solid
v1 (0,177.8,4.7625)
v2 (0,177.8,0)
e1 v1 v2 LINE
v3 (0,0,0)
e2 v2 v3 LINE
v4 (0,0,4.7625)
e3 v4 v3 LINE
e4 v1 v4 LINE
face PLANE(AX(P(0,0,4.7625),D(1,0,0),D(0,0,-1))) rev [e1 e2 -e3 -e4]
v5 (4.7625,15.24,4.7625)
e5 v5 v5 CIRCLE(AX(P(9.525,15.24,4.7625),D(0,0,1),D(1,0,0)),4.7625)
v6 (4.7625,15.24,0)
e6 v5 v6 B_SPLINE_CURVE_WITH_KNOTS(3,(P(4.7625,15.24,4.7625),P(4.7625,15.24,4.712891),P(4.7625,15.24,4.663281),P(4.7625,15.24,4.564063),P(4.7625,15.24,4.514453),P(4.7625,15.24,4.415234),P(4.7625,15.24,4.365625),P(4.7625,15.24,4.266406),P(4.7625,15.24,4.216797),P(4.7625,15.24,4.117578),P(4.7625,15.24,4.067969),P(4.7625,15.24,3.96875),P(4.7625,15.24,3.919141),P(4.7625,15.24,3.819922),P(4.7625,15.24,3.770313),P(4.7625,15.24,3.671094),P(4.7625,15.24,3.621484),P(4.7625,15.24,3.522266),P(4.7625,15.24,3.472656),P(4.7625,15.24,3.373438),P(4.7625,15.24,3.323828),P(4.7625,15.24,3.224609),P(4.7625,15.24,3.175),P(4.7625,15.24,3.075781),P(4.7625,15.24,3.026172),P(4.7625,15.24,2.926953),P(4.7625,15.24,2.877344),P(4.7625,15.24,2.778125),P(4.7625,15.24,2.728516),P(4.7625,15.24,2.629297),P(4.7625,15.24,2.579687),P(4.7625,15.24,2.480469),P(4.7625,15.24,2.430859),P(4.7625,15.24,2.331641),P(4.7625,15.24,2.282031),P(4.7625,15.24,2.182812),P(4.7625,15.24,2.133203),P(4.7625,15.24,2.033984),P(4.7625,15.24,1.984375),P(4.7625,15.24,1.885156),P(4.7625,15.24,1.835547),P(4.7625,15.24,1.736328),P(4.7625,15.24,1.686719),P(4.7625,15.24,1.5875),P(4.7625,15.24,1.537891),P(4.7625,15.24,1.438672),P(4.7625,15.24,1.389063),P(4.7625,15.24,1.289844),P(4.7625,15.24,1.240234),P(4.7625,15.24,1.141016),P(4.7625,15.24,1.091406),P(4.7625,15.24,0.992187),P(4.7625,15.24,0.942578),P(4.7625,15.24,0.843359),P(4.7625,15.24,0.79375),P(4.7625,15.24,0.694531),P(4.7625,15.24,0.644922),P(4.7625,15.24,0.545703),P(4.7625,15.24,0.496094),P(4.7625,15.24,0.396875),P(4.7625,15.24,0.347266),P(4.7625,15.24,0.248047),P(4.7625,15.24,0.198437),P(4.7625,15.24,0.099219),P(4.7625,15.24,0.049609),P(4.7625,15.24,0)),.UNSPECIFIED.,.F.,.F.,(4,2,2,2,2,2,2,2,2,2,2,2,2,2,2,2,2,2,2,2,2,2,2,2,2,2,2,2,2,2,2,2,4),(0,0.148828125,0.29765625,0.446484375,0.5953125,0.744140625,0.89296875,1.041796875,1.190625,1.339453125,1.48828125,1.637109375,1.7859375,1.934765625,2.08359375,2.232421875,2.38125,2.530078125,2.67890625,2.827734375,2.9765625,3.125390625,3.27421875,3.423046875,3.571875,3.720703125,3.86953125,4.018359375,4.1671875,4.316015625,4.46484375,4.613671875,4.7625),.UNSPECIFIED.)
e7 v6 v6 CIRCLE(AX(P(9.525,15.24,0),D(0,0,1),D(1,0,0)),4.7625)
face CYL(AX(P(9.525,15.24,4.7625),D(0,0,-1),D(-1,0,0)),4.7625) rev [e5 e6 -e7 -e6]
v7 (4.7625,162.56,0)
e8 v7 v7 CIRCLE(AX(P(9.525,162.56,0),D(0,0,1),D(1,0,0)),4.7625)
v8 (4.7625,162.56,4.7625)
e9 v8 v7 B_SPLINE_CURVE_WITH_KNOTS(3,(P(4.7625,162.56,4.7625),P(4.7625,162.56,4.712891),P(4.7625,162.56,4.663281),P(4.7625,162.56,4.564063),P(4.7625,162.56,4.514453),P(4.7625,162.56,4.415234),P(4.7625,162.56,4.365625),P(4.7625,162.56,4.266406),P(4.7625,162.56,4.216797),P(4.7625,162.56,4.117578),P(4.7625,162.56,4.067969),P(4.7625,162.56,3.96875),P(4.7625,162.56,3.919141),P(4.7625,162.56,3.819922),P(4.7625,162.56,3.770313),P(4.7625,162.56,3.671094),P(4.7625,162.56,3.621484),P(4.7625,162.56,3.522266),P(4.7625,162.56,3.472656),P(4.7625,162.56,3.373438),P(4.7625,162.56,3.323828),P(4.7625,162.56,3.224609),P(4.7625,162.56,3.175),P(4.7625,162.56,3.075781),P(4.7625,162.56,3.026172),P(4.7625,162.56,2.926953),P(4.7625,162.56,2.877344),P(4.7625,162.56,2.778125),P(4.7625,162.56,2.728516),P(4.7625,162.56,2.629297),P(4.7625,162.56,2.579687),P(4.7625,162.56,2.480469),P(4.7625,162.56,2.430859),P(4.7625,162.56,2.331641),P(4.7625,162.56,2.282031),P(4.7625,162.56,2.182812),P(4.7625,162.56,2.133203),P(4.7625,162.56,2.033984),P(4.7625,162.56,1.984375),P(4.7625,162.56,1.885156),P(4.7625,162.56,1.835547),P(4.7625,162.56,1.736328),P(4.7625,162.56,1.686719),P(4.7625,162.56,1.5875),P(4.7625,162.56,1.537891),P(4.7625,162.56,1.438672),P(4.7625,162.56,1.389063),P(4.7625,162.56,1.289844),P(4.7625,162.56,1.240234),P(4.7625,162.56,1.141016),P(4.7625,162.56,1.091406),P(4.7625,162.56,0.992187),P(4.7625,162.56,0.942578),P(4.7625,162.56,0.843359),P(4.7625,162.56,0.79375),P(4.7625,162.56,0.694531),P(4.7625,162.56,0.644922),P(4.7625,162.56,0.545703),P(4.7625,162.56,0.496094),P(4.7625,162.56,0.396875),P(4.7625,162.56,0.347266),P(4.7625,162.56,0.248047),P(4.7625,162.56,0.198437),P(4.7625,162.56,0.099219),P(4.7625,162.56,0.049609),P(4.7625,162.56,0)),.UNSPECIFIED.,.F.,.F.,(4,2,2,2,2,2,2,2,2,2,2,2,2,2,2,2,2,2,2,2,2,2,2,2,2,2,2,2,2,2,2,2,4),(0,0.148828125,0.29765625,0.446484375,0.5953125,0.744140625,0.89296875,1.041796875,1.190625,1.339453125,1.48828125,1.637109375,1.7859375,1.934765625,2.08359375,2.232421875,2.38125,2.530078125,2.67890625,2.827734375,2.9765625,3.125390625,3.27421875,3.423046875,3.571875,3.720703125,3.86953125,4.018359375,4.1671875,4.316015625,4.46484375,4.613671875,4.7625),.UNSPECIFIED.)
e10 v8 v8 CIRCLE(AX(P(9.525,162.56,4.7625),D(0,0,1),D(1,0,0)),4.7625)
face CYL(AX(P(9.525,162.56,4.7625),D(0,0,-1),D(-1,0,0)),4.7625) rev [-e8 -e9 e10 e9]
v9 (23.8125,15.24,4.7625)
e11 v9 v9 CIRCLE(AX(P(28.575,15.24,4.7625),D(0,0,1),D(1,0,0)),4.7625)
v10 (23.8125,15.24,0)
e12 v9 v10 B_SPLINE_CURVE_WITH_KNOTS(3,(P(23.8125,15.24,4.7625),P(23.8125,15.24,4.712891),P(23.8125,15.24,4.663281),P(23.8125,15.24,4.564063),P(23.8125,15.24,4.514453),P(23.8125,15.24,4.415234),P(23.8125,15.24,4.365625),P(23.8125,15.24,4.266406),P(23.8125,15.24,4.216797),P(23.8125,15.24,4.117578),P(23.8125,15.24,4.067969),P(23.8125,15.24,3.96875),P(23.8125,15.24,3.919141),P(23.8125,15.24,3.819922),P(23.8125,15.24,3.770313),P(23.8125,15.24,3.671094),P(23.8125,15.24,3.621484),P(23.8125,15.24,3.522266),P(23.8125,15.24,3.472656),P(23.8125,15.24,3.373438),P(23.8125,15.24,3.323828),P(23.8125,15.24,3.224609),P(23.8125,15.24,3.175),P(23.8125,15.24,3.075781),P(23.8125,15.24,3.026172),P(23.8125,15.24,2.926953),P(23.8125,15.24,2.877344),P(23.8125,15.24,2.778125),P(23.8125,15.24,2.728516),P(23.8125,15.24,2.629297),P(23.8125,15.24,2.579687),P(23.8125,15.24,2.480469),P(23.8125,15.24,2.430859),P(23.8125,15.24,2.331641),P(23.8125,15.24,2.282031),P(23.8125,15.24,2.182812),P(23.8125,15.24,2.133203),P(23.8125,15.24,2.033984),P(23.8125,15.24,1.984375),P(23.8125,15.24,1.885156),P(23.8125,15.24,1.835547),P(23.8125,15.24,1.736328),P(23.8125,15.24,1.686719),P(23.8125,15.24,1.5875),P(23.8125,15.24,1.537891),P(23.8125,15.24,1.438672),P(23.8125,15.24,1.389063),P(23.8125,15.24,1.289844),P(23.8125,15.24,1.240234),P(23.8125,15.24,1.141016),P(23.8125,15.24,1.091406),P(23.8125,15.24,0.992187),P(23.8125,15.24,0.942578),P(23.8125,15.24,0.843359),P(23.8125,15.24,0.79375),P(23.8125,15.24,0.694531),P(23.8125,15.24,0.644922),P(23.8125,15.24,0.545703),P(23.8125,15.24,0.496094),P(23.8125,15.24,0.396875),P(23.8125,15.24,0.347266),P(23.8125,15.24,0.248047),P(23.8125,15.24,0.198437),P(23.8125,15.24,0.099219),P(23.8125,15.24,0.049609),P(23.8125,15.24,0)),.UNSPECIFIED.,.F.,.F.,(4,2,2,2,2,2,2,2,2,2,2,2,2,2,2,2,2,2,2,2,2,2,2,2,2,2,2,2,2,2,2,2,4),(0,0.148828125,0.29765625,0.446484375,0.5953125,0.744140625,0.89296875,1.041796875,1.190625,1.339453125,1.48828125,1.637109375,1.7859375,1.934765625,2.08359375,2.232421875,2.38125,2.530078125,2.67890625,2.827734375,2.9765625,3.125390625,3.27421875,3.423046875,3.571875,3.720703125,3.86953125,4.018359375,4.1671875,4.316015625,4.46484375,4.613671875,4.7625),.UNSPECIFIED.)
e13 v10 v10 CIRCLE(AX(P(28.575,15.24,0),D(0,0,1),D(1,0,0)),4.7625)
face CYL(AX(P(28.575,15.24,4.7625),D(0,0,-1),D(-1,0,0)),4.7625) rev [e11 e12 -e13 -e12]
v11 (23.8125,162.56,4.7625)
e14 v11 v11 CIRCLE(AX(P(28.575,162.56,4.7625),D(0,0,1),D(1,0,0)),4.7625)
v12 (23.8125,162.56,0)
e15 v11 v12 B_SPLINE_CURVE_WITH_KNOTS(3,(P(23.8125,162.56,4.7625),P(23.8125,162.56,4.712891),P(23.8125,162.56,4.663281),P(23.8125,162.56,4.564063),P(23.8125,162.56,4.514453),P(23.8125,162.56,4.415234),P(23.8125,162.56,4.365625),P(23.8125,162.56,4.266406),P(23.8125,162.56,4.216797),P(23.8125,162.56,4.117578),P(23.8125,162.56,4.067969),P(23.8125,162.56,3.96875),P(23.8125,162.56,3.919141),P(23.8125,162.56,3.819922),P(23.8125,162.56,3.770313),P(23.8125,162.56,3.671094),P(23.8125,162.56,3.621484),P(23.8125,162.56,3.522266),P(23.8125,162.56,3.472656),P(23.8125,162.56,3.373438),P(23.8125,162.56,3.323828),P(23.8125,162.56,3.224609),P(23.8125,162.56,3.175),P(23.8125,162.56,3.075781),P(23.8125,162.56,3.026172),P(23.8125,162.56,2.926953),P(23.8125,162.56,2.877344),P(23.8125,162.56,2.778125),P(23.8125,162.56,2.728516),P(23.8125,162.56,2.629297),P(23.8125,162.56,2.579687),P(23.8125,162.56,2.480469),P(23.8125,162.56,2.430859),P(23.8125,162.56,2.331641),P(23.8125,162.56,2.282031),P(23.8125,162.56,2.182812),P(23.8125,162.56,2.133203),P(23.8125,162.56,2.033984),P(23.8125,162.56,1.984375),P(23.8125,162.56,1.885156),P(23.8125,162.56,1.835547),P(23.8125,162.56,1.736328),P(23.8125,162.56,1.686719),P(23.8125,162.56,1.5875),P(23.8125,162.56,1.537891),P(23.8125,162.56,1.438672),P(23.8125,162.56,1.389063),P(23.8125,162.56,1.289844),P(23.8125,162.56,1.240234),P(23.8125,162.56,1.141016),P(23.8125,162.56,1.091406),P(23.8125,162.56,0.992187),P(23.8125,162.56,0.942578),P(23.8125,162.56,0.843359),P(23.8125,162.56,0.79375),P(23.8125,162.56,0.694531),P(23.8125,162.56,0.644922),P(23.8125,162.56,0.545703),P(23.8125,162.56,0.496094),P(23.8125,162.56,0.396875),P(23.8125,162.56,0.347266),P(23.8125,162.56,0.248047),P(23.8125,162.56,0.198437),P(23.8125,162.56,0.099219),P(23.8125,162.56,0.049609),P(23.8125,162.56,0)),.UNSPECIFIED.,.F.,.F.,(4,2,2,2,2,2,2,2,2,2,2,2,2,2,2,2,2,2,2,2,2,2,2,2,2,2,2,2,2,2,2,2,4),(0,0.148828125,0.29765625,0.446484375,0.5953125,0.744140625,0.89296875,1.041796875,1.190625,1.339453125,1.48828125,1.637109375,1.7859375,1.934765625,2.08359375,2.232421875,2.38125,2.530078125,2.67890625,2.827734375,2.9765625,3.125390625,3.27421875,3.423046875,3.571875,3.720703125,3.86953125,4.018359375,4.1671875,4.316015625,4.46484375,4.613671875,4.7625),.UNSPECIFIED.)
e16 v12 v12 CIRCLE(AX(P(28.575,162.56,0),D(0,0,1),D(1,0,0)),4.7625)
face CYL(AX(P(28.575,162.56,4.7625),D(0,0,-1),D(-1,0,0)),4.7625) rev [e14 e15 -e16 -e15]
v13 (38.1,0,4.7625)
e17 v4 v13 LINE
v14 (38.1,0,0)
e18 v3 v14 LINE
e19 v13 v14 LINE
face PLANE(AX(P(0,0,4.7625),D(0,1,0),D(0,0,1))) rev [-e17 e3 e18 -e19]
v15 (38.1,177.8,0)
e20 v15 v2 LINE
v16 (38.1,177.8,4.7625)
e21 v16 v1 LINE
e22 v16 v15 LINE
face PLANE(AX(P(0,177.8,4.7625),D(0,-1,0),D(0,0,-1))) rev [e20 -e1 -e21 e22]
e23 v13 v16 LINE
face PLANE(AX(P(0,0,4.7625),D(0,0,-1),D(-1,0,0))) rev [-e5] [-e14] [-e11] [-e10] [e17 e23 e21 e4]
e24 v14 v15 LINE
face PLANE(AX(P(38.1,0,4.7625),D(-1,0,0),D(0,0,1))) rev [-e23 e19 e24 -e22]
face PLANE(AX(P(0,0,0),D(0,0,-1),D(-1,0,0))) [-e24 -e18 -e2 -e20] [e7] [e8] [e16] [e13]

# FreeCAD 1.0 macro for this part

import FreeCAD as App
import Part
import Sketcher

V = App.Vector
Q = App.Units.Quantity


def add_polygon(sketch, points):
    """Adds a closed chain of lines whose ends are joined by coincident constraints."""
    first, n = sketch.GeometryCount, len(points)
    for a, b in zip(points, points[1:] + points[:1]):
        sketch.addGeometry(Part.LineSegment(App.Vector(*a, 0), App.Vector(*b, 0)), False)
    for i in range(n):
        sketch.addConstraint(Sketcher.Constraint("Coincident", first + i, 2, first + (i + 1) % n, 1))

doc = App.newDocument("Part")
body = doc.addObject("PartDesign::Body", "Body")

sketch1 = doc.addObject("Sketcher::SketchObject", "Sketch")
body.addObject(sketch1)
sketch1.AttachmentSupport = (doc.XY_Plane, [""])
sketch1.MapMode = "FlatFace"
add_polygon(sketch1, [(0, 177.8), (0, 0), (38.1, 0), (38.1, 177.8)])
sketch1.addGeometry(Part.Circle(V(9.5, 15.2, 0), V(0, 0, 1), 4.8), False)
sketch1.addGeometry(Part.Circle(V(28.6, 15.2, 0), V(0, 0, 1), 4.8), False)
sketch1.addGeometry(Part.Circle(V(9.5, 162.6, 0), V(0, 0, 1), 4.8), False)
sketch1.addGeometry(Part.Circle(V(28.6, 162.6, 0), V(0, 0, 1), 4.8), False)
sketch1.addConstraint(Sketcher.Constraint("Vertical", 0))
sketch1.addConstraint(Sketcher.Constraint("Horizontal", 1))
sketch1.addConstraint(Sketcher.Constraint("Vertical", 2))
sketch1.addConstraint(Sketcher.Constraint("Horizontal", 3))
sketch1.addConstraint(Sketcher.Constraint("Coincident", 0, 2, -1, 1))
sketch1.addConstraint(Sketcher.Constraint("Equal", 4, 5))
sketch1.addConstraint(Sketcher.Constraint("Equal", 5, 6))
sketch1.addConstraint(Sketcher.Constraint("Equal", 6, 7))
sketch1.addConstraint(Sketcher.Constraint("Horizontal", 4, 3, 5, 3))
sketch1.addConstraint(Sketcher.Constraint("Horizontal", 6, 3, 7, 3))
sketch1.addConstraint(Sketcher.Constraint("Vertical", 4, 3, 6, 3))
sketch1.addConstraint(Sketcher.Constraint("Vertical", 5, 3, 7, 3))
sketch1.addConstraint(Sketcher.Constraint("DistanceY", 0, 2, 0, 1, Q("7 in")))
sketch1.addConstraint(Sketcher.Constraint("Diameter", 4, Q("0.375 in")))
sketch1.addConstraint(Sketcher.Constraint("DistanceX", 1, 1, 1, 2, Q("1.5 in")))
sketch1.addConstraint(Sketcher.Constraint("DistanceY", -1, 1, 4, 3, Q("0.6 in")))
sketch1.addConstraint(Sketcher.Constraint("DistanceY", -1, 1, 6, 3, Q("6.4 in")))
sketch1.addConstraint(Sketcher.Constraint("DistanceX", 4, 3, 5, 3, Q("0.75 in")))
sketch1.addConstraint(Sketcher.Constraint("DistanceX", -1, 1, 4, 3, Q("0.375 in")))
pad1 = doc.addObject("PartDesign::Pad", "Pad")
body.addObject(pad1)
pad1.Profile = sketch1
pad1.Length = Q("0.1875 in")

doc.recompute()
